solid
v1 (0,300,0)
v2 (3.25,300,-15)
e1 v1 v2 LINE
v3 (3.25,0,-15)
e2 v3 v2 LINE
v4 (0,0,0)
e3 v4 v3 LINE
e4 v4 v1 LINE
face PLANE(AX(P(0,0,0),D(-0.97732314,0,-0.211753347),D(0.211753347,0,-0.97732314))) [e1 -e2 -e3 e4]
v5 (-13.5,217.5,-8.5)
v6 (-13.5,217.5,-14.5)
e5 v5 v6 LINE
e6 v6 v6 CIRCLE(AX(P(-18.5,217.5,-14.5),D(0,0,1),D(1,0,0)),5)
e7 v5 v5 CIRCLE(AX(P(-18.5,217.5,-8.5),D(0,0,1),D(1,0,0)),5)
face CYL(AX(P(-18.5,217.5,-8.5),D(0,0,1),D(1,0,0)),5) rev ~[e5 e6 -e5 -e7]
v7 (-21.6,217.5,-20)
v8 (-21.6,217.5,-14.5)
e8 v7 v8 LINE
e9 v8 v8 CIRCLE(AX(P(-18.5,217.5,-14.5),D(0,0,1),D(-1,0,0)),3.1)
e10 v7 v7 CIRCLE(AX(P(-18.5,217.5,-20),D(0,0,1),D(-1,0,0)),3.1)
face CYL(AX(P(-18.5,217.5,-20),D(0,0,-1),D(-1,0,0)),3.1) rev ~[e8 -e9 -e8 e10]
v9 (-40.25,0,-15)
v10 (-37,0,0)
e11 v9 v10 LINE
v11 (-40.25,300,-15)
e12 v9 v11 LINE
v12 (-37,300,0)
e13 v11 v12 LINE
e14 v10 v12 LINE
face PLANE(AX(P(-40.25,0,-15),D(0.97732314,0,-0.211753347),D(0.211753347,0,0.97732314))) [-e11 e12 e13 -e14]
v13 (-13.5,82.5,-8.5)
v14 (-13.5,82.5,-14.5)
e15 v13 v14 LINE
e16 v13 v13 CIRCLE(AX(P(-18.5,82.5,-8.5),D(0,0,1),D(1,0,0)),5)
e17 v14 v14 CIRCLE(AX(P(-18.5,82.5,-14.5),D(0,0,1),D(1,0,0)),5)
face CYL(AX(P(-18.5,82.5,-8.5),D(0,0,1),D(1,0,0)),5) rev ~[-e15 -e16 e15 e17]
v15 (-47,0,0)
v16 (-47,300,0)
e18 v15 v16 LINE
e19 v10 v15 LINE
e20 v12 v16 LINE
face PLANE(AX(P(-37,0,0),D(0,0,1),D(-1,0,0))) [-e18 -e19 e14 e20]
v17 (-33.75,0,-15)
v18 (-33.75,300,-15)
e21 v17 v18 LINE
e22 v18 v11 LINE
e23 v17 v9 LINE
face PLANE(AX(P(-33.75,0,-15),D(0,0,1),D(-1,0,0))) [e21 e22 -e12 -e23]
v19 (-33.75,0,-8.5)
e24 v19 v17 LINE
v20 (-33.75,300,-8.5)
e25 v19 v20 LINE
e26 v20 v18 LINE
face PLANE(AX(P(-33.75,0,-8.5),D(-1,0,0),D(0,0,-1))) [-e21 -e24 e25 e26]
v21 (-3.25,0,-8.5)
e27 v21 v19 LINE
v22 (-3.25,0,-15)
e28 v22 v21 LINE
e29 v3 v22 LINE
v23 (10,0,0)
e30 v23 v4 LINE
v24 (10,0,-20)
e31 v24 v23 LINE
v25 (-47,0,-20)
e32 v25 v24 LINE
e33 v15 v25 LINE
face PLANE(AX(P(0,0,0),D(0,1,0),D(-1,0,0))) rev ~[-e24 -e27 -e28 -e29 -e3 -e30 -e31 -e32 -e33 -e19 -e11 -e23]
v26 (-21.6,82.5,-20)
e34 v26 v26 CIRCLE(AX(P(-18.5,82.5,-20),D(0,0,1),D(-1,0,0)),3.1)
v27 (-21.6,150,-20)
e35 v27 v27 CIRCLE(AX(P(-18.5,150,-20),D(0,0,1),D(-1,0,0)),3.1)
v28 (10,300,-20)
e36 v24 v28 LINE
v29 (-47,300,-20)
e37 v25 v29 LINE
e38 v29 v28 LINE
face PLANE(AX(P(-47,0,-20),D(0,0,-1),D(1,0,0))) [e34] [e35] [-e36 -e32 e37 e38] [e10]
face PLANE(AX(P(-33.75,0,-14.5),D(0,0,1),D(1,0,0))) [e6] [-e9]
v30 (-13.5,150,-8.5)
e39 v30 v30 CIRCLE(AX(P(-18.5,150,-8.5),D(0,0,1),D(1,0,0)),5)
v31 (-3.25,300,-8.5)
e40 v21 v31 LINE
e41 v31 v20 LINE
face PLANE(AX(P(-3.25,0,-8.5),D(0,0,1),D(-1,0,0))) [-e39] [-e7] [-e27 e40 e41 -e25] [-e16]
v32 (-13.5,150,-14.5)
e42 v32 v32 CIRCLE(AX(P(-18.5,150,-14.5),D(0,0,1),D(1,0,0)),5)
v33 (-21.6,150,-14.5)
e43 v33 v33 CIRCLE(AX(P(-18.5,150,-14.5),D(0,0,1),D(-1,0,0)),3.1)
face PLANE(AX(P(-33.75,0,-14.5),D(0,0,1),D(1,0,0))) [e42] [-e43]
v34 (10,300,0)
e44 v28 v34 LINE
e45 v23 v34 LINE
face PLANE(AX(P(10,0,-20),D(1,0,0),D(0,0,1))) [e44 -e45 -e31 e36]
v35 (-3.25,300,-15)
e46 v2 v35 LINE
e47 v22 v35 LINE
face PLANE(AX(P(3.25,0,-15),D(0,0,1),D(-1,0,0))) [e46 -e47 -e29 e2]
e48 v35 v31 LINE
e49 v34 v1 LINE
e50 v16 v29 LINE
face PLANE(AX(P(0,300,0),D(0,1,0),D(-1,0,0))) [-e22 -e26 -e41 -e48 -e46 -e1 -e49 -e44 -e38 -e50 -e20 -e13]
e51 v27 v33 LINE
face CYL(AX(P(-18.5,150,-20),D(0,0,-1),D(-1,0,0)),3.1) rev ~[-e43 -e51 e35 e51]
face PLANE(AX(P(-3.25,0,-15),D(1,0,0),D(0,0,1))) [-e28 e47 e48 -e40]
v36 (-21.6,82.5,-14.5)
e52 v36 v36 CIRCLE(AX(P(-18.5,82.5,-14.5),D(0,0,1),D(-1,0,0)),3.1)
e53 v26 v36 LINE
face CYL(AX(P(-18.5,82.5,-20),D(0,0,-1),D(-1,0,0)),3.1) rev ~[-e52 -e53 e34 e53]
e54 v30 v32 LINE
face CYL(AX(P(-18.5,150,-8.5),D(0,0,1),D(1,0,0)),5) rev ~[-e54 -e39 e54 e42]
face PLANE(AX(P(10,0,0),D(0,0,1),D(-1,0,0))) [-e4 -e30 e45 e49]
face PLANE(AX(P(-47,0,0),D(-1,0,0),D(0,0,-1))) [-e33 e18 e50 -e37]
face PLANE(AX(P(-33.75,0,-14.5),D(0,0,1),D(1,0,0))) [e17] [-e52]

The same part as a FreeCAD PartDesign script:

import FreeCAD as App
import Part
import Sketcher

V = App.Vector

doc = App.newDocument("Part")
body = doc.addObject("PartDesign::Body", "Body")

# Sketch on XZ plane
sketch1 = doc.addObject("Sketcher::SketchObject", "Sketch")
body.addObject(sketch1)
sketch1.AttachmentSupport = (doc.XZ_Plane, [""])
sketch1.MapMode = "FlatFace"
sketch1.addGeometry([
    Part.LineSegment(V(-47, 0, 0), V(-37, 0, 0)),  # 0
    Part.LineSegment(V(-37, 0, 0), V(-40.25, -15, 0)),  # 1
    Part.LineSegment(V(-40.25, -15, 0), V(-33.75, -15, 0)),  # 2
    Part.LineSegment(V(-33.75, -15, 0), V(-33.75, -8.5, 0)),  # 3
    Part.LineSegment(V(-33.75, -8.5, 0), V(-3.25, -8.5, 0)),  # 4
    Part.LineSegment(V(-3.25, -8.5, 0), V(-3.25, -15, 0)),  # 5
    Part.LineSegment(V(-3.25, -15, 0), V(3.25, -15, 0)),  # 6
    Part.LineSegment(V(3.25, -15, 0), V(0, 0, 0)),  # 7
    Part.LineSegment(V(0, 0, 0), V(10, 0, 0)),  # 8
    Part.LineSegment(V(10, 0, 0), V(10, -20, 0)),  # 9
    Part.LineSegment(V(10, -20, 0), V(-47, -20, 0)),  # 10
    Part.LineSegment(V(-47, -20, 0), V(-47, 0, 0)),  # 11
], False)
sketch1.addConstraint([
    Sketcher.Constraint("Coincident", 0, 2, 1, 1),
    Sketcher.Constraint("Coincident", 1, 2, 2, 1),
    Sketcher.Constraint("Coincident", 2, 2, 3, 1),
    Sketcher.Constraint("Coincident", 3, 2, 4, 1),
    Sketcher.Constraint("Coincident", 4, 2, 5, 1),
    Sketcher.Constraint("Coincident", 5, 2, 6, 1),
    Sketcher.Constraint("Coincident", 6, 2, 7, 1),
    Sketcher.Constraint("Coincident", 7, 2, 8, 1),
    Sketcher.Constraint("Coincident", 8, 2, 9, 1),
    Sketcher.Constraint("Coincident", 9, 2, 10, 1),
    Sketcher.Constraint("Coincident", 10, 2, 11, 1),
    Sketcher.Constraint("Coincident", 11, 2, 0, 1),
    Sketcher.Constraint("Horizontal", 0),
    Sketcher.Constraint("Horizontal", 2),
    Sketcher.Constraint("Vertical", 3),
    Sketcher.Constraint("Horizontal", 4),
    Sketcher.Constraint("Vertical", 5),
    Sketcher.Constraint("Horizontal", 6),
    Sketcher.Constraint("Horizontal", 8),
    Sketcher.Constraint("Vertical", 9),
    Sketcher.Constraint("Horizontal", 10),
    Sketcher.Constraint("Vertical", 11),
    Sketcher.Constraint("Coincident", 7, 2, -1, 1),
    Sketcher.Constraint("PointOnObject", 0, 2, -1),
    Sketcher.Constraint("Horizontal", 2, 2, 5, 2),
    Sketcher.Constraint("Equal", 2, 6),
    Sketcher.Constraint("Equal", 0, 8),
    Sketcher.Constraint("Equal", 6, 3),
    Sketcher.Constraint("Equal", 1, 7),
    Sketcher.Constraint("DistanceX", 0, 1, 0, 2, 10.0),
    Sketcher.Constraint("DistanceY", 9, 2, 9, 1, 20.0),
    Sketcher.Constraint("DistanceX", 10, 2, 10, 1, 57.0),
    Sketcher.Constraint("DistanceX", 2, 1, 2, 2, 6.5),
    Sketcher.Constraint("DistanceX", 4, 1, 4, 2, 30.5),
    Sketcher.Constraint("DistanceY", 1, 2, -1, 1, 15.0),
])
pad1 = doc.addObject("PartDesign::Pad", "Pad")
body.addObject(pad1)
pad1.Profile = sketch1
pad1.Length = 300
pad1.Reversed = True

# Sketch on XY plane
sketch2 = doc.addObject("Sketcher::SketchObject", "Sketch001")
body.addObject(sketch2)
sketch2.AttachmentSupport = (doc.XY_Plane, [""])
sketch2.MapMode = "FlatFace"
sketch2.AttachmentOffset = App.Placement(V(0, 0, -20), App.Rotation())
sketch2.addGeometry([
    Part.Circle(V(-18.5, 82.5, 0), V(0, 0, 1), 3.1),
    Part.Circle(V(-18.5, 217.5, 0), V(0, 0, 1), 3.1),
    Part.Circle(V(-18.5, 150, 0), V(0, 0, 1), 3.1),
], False)
sketch2.addConstraint([
    Sketcher.Constraint("Equal", 0, 1),
    Sketcher.Constraint("Equal", 1, 2),
    Sketcher.Constraint("Vertical", 0, 3, 1, 3),
    Sketcher.Constraint("Vertical", 1, 3, 2, 3),
    Sketcher.Constraint("Diameter", 0, 6.2),
    Sketcher.Constraint("DistanceY", -1, 1, 2, 3, 150.0),
    Sketcher.Constraint("DistanceY", 0, 3, 1, 3, 135.0),
    Sketcher.Constraint("DistanceX", 0, 3, -1, 1, 18.5),
    Sketcher.Constraint("DistanceY", -1, 1, 0, 3, 82.5),
])
pocket1 = doc.addObject("PartDesign::Pocket", "Pocket")
body.addObject(pocket1)
pocket1.Profile = sketch2
pocket1.Length = 11.5
pocket1.Reversed = True

# Sketch on XY plane
sketch3 = doc.addObject("Sketcher::SketchObject", "Sketch002")
body.addObject(sketch3)
sketch3.AttachmentSupport = (doc.XY_Plane, [""])
sketch3.MapMode = "FlatFace"
sketch3.AttachmentOffset = App.Placement(V(0, 0, -8.5), App.Rotation())
sketch3.addGeometry([
    Part.Circle(V(-18.5, 82.5, 0), V(0, 0, 1), 5),  # 0
    Part.Circle(V(-18.5, 82.5, 0), V(0, 0, 1), 3.1),  # 1
    Part.Circle(V(-18.5, 150, 0), V(0, 0, 1), 5),  # 2
    Part.Circle(V(-18.5, 150, 0), V(0, 0, 1), 3.1),  # 3
    Part.Circle(V(-18.5, 217.5, 0), V(0, 0, 1), 5),  # 4
    Part.Circle(V(-18.5, 217.5, 0), V(0, 0, 1), 3.1),  # 5
], False)
sketch3.addConstraint([
    Sketcher.Constraint("Coincident", 1, 3, 0, 3),
    Sketcher.Constraint("Coincident", 3, 3, 2, 3),
    Sketcher.Constraint("Coincident", 5, 3, 4, 3),
    Sketcher.Constraint("Equal", 0, 2),
    Sketcher.Constraint("Equal", 1, 3),
    Sketcher.Constraint("Equal", 2, 4),
    Sketcher.Constraint("Equal", 3, 5),
    Sketcher.Constraint("Vertical", 1, 3, 2, 3),
    Sketcher.Constraint("Vertical", 3, 3, 4, 3),
    Sketcher.Constraint("Diameter", 0, 10.0),
    Sketcher.Constraint("Diameter", 1, 6.2),
    Sketcher.Constraint("DistanceY", -1, 1, 2, 3, 150.0),
    Sketcher.Constraint("DistanceY", 0, 3, 4, 3, 135.0),
    Sketcher.Constraint("DistanceX", 0, 3, -1, 1, 18.5),
    Sketcher.Constraint("DistanceY", -1, 1, 0, 3, 82.5),
])
pocket2 = doc.addObject("PartDesign::Pocket", "Pocket001")
body.addObject(pocket2)
pocket2.Profile = sketch3
pocket2.Length = 6

doc.recompute()
